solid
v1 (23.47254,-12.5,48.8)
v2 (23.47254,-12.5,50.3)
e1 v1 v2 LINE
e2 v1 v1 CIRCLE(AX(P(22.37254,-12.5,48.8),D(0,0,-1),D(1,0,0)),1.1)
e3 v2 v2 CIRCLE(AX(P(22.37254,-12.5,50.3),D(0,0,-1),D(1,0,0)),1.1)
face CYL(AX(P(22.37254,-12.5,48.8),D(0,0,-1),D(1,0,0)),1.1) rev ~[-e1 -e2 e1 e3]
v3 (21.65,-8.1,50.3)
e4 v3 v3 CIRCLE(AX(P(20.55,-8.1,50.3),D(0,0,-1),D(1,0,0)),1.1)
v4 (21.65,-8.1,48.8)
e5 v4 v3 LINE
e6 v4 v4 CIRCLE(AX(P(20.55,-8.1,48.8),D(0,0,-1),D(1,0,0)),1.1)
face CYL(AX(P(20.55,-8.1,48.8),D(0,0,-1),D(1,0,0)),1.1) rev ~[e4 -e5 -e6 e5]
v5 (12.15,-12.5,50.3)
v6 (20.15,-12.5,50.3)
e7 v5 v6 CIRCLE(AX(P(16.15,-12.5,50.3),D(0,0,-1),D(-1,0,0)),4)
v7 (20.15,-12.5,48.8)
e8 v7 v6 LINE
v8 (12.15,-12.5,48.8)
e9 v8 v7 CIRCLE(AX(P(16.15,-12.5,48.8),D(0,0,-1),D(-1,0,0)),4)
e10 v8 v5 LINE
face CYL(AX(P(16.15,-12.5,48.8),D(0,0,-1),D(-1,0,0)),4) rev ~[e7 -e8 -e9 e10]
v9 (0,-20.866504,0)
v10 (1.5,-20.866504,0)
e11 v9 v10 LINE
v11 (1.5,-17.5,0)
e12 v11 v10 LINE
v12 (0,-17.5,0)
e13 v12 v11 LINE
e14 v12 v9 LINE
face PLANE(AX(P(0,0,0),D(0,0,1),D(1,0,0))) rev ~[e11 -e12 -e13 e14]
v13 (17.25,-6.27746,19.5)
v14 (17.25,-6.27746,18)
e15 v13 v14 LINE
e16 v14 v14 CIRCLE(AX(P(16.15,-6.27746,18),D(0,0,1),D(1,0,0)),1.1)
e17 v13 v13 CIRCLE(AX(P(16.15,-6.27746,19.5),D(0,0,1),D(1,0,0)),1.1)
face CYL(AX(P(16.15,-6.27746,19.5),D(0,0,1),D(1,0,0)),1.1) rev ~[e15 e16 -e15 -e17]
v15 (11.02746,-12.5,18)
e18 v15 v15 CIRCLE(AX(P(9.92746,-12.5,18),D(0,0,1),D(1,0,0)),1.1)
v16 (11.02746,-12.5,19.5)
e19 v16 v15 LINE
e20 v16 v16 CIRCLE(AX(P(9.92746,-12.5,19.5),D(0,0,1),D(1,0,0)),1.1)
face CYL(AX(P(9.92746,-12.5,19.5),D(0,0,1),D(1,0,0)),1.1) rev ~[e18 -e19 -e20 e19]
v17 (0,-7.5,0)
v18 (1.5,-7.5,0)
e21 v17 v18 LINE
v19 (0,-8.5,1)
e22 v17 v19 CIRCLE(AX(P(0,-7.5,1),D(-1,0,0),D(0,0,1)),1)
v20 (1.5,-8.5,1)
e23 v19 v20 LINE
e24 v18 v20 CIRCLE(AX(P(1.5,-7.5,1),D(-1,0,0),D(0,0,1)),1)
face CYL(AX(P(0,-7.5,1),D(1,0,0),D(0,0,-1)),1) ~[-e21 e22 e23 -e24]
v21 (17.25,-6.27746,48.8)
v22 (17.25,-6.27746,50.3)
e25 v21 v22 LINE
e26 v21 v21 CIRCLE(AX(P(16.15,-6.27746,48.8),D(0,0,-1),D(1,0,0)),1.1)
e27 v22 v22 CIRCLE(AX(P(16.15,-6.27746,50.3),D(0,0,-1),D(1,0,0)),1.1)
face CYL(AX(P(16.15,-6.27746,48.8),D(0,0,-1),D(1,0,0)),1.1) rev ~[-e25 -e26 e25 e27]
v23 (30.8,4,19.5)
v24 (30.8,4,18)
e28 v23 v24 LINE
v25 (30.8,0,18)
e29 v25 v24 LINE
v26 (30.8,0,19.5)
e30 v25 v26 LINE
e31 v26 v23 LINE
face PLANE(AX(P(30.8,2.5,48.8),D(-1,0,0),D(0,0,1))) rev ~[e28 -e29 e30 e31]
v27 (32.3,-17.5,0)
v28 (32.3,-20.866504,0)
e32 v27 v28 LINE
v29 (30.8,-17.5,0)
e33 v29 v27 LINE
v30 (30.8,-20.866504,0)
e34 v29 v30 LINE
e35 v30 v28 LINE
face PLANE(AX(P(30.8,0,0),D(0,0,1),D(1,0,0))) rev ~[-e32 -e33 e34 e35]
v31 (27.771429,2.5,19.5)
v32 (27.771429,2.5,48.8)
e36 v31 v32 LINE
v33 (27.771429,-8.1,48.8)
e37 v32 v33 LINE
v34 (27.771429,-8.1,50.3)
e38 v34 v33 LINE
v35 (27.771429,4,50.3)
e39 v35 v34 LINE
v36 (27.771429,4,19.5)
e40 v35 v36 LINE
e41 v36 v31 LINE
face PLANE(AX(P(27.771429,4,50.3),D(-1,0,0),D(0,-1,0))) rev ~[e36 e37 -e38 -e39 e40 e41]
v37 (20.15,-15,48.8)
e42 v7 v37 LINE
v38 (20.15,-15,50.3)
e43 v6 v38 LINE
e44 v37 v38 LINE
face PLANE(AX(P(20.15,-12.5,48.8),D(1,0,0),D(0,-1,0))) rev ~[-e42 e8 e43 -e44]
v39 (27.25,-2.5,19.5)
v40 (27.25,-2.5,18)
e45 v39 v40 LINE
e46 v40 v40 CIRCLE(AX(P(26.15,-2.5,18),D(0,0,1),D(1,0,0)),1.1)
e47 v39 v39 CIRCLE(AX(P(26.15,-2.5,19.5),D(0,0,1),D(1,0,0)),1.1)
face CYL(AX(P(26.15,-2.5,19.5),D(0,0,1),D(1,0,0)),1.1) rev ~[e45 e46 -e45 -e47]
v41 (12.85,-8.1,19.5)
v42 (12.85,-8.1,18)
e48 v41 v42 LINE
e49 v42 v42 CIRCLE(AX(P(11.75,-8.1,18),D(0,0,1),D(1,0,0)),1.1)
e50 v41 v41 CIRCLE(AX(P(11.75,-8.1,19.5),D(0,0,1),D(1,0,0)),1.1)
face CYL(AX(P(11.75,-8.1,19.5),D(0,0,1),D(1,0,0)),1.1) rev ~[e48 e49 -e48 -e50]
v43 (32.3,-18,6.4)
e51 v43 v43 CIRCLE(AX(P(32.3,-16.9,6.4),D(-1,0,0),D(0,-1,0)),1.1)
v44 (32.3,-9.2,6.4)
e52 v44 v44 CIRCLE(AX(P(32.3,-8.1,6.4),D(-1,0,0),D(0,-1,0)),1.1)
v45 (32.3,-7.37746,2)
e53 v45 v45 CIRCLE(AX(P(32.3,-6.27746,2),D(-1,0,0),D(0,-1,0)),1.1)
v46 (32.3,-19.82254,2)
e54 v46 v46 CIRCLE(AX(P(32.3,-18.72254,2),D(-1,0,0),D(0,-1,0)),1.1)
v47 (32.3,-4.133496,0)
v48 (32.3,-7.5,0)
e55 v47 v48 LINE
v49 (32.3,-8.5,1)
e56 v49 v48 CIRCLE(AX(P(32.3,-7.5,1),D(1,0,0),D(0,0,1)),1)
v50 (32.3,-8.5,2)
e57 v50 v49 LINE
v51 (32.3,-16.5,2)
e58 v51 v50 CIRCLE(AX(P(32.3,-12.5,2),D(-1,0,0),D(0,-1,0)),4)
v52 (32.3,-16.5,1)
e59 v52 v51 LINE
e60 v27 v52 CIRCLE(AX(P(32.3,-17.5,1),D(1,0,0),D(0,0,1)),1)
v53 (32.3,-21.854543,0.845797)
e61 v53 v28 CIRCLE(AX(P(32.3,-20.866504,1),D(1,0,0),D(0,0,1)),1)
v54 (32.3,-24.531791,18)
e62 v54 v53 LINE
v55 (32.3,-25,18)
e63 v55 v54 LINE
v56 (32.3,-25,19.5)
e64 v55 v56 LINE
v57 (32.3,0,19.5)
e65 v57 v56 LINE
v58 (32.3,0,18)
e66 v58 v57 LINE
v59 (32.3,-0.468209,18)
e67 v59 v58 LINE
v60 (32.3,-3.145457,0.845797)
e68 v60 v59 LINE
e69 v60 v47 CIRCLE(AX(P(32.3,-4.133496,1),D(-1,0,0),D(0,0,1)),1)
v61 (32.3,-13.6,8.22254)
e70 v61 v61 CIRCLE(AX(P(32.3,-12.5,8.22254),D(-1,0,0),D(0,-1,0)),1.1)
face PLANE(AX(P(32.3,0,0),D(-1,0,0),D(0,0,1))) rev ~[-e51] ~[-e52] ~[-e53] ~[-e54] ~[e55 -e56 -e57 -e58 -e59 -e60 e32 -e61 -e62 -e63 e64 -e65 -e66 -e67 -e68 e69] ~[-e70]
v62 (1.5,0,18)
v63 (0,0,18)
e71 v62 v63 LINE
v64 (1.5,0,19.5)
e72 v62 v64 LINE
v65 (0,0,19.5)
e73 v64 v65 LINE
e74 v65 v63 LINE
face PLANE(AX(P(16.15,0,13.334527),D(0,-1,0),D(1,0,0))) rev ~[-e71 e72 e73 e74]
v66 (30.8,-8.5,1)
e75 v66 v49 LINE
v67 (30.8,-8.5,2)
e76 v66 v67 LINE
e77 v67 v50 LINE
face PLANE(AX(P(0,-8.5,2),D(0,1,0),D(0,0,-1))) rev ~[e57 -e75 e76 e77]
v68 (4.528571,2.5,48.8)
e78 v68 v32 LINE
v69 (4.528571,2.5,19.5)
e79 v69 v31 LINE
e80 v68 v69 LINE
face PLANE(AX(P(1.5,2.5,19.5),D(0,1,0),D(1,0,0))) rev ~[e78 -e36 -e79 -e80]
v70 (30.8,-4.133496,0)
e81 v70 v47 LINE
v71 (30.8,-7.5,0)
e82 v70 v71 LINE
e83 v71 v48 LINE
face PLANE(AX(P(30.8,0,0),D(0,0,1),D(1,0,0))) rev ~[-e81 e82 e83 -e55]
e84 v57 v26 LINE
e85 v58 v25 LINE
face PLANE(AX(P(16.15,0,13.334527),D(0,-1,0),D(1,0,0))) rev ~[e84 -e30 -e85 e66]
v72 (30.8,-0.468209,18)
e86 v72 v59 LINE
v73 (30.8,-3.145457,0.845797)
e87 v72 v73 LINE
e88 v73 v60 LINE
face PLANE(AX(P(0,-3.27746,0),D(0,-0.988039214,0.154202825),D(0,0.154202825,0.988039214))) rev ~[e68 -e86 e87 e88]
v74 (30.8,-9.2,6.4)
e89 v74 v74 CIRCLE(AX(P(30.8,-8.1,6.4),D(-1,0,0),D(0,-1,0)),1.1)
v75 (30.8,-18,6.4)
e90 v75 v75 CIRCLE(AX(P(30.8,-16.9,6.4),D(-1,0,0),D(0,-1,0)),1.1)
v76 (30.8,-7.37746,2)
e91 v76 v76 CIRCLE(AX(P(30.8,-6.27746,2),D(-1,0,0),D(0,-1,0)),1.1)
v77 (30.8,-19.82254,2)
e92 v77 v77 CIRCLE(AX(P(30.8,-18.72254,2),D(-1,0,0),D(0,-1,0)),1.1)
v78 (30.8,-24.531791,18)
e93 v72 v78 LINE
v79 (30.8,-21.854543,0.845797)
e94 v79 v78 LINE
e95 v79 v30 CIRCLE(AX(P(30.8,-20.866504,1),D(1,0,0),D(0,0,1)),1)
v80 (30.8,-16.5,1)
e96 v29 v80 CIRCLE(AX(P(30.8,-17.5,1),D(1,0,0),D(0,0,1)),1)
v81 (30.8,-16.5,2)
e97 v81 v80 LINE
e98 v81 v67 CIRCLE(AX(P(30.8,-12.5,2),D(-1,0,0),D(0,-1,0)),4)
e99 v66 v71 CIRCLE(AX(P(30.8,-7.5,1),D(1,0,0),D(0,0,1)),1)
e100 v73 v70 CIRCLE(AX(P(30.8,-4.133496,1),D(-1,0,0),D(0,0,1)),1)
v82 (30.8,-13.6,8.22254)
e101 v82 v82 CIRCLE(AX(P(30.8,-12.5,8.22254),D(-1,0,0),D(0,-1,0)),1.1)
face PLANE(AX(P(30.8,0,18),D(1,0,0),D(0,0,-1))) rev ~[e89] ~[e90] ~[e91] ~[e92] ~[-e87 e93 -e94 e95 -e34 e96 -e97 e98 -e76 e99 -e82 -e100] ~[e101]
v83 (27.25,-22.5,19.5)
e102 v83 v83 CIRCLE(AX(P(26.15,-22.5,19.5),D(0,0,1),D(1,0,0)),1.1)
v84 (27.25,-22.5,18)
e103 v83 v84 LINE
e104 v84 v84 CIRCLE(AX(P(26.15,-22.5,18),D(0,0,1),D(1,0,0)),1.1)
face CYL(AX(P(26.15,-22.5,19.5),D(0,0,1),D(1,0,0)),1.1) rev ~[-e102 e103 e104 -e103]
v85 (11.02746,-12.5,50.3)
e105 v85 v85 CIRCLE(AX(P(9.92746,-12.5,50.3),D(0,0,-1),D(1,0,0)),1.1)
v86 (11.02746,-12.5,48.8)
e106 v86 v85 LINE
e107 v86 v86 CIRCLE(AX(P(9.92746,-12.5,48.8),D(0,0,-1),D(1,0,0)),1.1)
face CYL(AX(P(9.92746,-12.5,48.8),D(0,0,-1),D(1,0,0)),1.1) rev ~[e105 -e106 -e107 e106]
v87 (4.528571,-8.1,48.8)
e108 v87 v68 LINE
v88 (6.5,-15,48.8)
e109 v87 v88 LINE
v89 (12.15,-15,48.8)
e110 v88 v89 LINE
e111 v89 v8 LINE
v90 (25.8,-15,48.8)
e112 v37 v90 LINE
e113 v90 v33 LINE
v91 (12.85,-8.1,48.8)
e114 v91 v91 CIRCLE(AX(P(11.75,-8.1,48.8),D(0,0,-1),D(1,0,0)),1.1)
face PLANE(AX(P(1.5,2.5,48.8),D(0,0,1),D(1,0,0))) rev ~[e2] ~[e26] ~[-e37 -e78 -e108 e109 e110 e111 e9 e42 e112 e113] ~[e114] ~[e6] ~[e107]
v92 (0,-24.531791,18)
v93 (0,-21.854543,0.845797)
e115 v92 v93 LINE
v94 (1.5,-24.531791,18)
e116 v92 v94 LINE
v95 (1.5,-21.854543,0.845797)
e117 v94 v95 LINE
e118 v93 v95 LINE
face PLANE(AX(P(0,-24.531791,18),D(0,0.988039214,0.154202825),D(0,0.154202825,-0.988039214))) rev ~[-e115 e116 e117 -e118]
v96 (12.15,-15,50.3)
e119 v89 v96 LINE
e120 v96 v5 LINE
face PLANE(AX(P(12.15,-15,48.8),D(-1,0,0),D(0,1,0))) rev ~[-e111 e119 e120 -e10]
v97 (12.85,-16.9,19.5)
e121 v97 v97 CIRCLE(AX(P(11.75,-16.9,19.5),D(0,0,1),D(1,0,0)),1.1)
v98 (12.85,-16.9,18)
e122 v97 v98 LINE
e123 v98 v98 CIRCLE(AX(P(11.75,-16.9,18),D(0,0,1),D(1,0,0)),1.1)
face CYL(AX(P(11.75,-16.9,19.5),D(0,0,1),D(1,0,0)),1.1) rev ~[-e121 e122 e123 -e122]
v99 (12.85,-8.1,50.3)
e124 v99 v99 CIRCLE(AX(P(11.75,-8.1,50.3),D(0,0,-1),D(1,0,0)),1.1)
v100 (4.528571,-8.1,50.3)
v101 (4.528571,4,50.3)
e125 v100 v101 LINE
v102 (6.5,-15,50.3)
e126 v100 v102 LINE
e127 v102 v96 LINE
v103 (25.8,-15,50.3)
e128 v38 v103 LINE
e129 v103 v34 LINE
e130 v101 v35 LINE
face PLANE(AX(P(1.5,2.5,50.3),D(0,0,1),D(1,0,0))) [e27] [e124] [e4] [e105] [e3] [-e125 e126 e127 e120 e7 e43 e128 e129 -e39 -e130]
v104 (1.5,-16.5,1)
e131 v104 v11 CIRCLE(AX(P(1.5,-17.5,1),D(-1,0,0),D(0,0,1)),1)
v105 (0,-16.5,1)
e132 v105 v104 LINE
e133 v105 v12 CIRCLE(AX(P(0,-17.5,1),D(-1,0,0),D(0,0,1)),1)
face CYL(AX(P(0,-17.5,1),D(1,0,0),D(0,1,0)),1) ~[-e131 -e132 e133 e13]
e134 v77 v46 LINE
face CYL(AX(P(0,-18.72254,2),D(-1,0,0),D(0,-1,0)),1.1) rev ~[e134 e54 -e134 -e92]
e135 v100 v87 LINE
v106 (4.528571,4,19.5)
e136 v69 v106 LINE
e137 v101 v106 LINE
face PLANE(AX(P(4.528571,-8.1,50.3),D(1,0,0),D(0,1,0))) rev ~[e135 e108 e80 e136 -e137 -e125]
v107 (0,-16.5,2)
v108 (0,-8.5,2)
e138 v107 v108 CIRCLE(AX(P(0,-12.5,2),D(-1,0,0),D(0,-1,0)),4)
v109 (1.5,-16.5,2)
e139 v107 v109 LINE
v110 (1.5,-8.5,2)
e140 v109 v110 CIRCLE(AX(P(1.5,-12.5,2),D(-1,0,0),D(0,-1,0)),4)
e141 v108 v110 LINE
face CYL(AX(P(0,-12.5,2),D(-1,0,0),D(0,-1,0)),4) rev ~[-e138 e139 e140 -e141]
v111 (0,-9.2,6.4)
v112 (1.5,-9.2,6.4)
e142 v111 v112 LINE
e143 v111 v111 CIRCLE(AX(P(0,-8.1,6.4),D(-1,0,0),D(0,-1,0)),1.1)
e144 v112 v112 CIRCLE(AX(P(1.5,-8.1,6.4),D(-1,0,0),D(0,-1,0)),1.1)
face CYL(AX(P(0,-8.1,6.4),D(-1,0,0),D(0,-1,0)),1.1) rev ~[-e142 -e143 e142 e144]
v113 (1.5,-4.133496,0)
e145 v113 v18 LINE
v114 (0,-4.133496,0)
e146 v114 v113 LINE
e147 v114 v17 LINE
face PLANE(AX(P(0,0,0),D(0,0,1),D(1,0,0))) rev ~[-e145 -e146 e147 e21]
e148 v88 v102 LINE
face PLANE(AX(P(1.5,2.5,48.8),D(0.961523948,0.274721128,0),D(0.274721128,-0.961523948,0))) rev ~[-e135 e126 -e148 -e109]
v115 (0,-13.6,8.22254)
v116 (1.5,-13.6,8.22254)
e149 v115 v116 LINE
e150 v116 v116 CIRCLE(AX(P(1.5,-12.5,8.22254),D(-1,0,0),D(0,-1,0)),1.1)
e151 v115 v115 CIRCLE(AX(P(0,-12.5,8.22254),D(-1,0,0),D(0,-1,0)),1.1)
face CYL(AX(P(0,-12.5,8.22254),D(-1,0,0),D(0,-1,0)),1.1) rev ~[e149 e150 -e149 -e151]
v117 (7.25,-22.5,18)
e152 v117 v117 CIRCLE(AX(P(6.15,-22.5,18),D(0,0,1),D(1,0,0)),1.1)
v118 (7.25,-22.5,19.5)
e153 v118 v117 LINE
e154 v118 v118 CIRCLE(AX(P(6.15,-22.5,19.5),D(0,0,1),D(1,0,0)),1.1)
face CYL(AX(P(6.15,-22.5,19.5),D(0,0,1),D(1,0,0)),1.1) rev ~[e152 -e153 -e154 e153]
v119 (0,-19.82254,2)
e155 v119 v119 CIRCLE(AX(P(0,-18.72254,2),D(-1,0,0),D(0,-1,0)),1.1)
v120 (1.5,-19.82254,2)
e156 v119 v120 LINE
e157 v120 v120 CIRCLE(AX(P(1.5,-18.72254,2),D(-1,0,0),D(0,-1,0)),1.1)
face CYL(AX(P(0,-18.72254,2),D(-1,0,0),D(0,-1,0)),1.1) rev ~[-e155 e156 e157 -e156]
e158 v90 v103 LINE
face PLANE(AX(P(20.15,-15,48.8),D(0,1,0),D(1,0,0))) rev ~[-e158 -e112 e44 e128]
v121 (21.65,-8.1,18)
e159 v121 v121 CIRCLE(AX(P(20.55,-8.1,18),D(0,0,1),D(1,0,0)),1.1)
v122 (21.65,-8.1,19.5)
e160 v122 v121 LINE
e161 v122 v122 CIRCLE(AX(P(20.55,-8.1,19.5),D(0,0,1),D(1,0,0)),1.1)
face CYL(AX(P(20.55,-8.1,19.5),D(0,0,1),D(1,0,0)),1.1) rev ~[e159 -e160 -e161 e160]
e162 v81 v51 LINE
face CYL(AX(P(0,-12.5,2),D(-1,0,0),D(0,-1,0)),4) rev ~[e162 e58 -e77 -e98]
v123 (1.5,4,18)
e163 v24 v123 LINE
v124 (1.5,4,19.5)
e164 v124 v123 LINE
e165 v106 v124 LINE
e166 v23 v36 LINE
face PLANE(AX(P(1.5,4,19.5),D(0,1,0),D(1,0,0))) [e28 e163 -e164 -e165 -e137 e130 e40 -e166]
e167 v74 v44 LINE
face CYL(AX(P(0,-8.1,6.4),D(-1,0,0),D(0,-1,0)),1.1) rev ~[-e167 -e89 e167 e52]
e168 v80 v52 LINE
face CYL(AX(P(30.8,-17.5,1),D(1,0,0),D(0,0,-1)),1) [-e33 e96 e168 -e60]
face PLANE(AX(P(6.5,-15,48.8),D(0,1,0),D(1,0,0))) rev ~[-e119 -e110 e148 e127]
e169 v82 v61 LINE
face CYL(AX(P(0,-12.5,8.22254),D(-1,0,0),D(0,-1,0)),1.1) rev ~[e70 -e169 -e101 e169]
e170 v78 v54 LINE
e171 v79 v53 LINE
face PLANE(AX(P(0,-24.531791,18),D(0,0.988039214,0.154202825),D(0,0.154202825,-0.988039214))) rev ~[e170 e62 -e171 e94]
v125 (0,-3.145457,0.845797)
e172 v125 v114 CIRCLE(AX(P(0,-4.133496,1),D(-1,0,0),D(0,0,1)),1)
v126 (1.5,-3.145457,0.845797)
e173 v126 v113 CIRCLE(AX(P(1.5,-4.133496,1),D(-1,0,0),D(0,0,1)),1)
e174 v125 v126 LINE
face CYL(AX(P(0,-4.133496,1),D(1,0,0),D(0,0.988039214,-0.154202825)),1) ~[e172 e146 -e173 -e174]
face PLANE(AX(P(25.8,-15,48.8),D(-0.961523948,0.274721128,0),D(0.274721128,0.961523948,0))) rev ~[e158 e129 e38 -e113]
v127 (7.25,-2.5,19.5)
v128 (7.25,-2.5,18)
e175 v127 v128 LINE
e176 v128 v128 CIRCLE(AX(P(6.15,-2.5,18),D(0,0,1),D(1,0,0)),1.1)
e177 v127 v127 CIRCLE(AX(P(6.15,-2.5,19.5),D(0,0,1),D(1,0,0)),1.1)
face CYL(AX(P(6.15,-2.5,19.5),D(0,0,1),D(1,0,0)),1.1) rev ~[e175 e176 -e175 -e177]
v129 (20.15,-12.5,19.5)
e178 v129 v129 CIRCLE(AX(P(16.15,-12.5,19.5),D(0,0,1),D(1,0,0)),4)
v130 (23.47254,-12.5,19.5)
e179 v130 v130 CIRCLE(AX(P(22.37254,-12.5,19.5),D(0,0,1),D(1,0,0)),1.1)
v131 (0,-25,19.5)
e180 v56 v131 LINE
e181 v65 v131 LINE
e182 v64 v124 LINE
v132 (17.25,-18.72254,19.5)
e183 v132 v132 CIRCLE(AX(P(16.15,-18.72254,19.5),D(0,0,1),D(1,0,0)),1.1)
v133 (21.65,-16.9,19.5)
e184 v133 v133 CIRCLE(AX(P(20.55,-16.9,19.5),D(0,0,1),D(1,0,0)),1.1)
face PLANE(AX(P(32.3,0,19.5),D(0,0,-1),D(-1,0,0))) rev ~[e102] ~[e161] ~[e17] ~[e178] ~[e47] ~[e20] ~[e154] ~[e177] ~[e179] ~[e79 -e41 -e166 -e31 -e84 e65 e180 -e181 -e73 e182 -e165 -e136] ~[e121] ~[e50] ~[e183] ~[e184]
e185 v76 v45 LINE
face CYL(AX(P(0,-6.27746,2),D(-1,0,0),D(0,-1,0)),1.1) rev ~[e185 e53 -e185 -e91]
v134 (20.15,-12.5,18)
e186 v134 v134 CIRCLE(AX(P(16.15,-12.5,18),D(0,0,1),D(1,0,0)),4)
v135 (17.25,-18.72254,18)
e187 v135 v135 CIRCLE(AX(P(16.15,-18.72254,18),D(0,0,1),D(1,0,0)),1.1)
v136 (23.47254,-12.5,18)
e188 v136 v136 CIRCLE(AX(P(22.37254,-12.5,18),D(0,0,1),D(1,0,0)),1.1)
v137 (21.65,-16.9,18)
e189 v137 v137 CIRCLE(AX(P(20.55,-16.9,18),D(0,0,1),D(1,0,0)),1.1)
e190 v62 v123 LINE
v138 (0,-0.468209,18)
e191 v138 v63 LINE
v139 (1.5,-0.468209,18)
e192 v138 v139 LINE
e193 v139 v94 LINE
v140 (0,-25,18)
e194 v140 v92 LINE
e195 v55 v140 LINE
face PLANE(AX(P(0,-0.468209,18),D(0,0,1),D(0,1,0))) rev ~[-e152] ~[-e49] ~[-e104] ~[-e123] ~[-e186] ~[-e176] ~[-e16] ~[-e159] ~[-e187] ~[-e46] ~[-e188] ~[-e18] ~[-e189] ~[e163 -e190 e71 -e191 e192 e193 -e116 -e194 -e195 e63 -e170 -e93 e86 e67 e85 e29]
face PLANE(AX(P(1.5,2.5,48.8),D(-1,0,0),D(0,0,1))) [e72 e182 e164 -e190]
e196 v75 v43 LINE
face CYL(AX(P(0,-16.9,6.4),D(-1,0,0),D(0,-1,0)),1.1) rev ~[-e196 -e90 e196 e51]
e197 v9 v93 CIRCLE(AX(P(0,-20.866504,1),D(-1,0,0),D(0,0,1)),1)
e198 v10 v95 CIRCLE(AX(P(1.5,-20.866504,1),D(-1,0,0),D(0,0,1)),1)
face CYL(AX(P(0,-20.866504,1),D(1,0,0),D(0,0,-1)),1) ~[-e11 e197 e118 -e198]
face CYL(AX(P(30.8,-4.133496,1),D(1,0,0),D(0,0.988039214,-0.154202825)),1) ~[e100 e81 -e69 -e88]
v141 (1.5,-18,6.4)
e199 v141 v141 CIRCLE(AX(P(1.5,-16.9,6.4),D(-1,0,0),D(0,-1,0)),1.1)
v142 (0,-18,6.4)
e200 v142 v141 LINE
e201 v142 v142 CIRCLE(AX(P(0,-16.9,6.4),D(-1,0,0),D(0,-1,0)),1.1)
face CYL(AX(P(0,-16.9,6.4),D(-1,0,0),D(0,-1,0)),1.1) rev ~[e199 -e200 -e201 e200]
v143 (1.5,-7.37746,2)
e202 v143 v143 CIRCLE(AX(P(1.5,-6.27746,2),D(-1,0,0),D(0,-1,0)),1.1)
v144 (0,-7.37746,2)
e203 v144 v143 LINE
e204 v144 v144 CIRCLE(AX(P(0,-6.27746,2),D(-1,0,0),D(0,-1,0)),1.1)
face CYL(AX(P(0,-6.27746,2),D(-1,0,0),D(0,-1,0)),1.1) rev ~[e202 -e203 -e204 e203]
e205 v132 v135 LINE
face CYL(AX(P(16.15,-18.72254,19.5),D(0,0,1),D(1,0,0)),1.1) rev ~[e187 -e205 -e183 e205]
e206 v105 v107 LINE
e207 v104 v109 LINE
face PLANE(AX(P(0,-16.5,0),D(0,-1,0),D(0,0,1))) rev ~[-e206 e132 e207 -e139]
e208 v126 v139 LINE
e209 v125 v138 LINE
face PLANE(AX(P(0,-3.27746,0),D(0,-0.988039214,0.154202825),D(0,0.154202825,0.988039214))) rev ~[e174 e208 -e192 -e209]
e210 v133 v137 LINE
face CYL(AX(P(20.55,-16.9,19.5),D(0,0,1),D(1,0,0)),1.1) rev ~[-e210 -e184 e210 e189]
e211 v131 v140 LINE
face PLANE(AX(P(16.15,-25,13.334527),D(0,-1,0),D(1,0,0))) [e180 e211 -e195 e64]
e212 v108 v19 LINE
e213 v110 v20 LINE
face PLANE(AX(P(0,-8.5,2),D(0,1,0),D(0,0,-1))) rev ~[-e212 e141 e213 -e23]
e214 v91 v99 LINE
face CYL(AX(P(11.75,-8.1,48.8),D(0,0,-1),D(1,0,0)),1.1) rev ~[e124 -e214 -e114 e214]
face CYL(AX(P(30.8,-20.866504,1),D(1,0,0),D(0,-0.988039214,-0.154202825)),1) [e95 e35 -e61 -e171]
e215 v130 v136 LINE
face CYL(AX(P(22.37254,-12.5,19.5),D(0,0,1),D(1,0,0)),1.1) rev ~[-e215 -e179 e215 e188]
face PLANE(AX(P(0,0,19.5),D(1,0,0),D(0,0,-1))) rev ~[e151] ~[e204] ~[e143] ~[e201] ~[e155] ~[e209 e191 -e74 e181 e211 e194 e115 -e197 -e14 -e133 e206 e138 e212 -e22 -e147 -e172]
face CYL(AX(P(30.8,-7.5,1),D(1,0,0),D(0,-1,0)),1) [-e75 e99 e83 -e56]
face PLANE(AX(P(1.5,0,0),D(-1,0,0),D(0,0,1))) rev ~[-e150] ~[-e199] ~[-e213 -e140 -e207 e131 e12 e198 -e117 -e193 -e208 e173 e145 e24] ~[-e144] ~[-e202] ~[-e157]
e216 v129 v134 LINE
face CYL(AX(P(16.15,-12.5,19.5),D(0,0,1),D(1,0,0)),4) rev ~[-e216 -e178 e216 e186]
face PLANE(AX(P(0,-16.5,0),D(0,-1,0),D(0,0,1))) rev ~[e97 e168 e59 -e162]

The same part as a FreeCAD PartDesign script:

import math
import FreeCAD as App
import Part
import Sketcher

V = App.Vector


def edges_at(feature, points):
    """Names of the edges that pass closest to the given points."""
    edges = feature.Shape.Edges
    near = lambda p: min(range(len(edges)), key=lambda i: edges[i].distToShape(Part.Vertex(*p))[0])
    return sorted({f"Edge{near(p) + 1}" for p in points})

doc = App.newDocument("Part")
body = doc.addObject("PartDesign::Body", "Body")

sketch1 = doc.addObject("Sketcher::SketchObject", "Sketch")
body.addObject(sketch1)
sketch1.AttachmentSupport = (doc.XZ_Plane, [""])
sketch1.MapMode = "FlatFace"
sketch1.addGeometry(Part.LineSegment(V(0, 19.5, 0), V(0, 0, 0)), False)
sketch1.addGeometry(Part.LineSegment(V(0, 0, 0), V(1.5, 0, 0)), False)
sketch1.addGeometry(Part.LineSegment(V(1.5, 0, 0), V(1.5, 18, 0)), False)
sketch1.addGeometry(Part.LineSegment(V(1.5, 18, 0), V(30.8, 18, 0)), False)
sketch1.addGeometry(Part.LineSegment(V(30.8, 18, 0), V(30.8, 0, 0)), False)
sketch1.addGeometry(Part.LineSegment(V(30.8, 0, 0), V(32.3, 0, 0)), False)
sketch1.addGeometry(Part.LineSegment(V(32.3, 0, 0), V(32.3, 19.5, 0)), False)
sketch1.addGeometry(Part.LineSegment(V(32.3, 19.5, 0), V(0, 19.5, 0)), False)
sketch1.addConstraint(Sketcher.Constraint("Coincident", 0, 2, 1, 1))
sketch1.addConstraint(Sketcher.Constraint("Coincident", 1, 2, 2, 1))
sketch1.addConstraint(Sketcher.Constraint("Coincident", 2, 2, 3, 1))
sketch1.addConstraint(Sketcher.Constraint("Coincident", 3, 2, 4, 1))
sketch1.addConstraint(Sketcher.Constraint("Coincident", 4, 2, 5, 1))
sketch1.addConstraint(Sketcher.Constraint("Coincident", 5, 2, 6, 1))
sketch1.addConstraint(Sketcher.Constraint("Coincident", 6, 2, 7, 1))
sketch1.addConstraint(Sketcher.Constraint("Coincident", 7, 2, 0, 1))
sketch1.addConstraint(Sketcher.Constraint("Vertical", 0))
sketch1.addConstraint(Sketcher.Constraint("Horizontal", 1))
sketch1.addConstraint(Sketcher.Constraint("Vertical", 2))
sketch1.addConstraint(Sketcher.Constraint("Horizontal", 3))
sketch1.addConstraint(Sketcher.Constraint("Vertical", 4))
sketch1.addConstraint(Sketcher.Constraint("Horizontal", 5))
sketch1.addConstraint(Sketcher.Constraint("Vertical", 6))
sketch1.addConstraint(Sketcher.Constraint("Horizontal", 7))
sketch1.addConstraint(Sketcher.Constraint("Coincident", 0, 2, -1, 1))
sketch1.addConstraint(Sketcher.Constraint("PointOnObject", 4, 2, -1))
sketch1.addConstraint(Sketcher.Constraint("Equal", 1, 5))
sketch1.addConstraint(Sketcher.Constraint("DistanceY", 2, 1, 2, 2, 18.0))
sketch1.addConstraint(Sketcher.Constraint("DistanceX", 1, 1, 1, 2, 1.5))
sketch1.addConstraint(Sketcher.Constraint("DistanceX", 3, 1, 3, 2, 29.3))
sketch1.addConstraint(Sketcher.Constraint("DistanceY", 0, 2, 0, 1, 19.5))
pad1 = doc.addObject("PartDesign::Pad", "Pad")
body.addObject(pad1)
pad1.Profile = sketch1
pad1.Length = 25

sketch2 = doc.addObject("Sketcher::SketchObject", "Sketch001")
body.addObject(sketch2)
sketch2.AttachmentSupport = (doc.YZ_Plane, [""])
sketch2.MapMode = "FlatFace"
sketch2.addGeometry(Part.LineSegment(V(-16.5, 0, 0), V(-16.5, 2, 0)), False)
sketch2.addGeometry(Part.ArcOfCircle(Part.Circle(V(-12.5, 2, 0), V(0, 0, 1), 4), math.radians(0), math.radians(180)), False)
sketch2.addGeometry(Part.LineSegment(V(-8.5, 2, 0), V(-8.5, 0, 0)), False)
sketch2.addGeometry(Part.LineSegment(V(-8.5, 0, 0), V(-16.5, 0, 0)), False)
sketch2.addGeometry(Part.Circle(V(-18.72, 2, 0), V(0, 0, 1), 1.1), False)
sketch2.addGeometry(Part.Circle(V(-16.9, 6.4, 0), V(0, 0, 1), 1.1), False)
sketch2.addGeometry(Part.Circle(V(-12.5, 8.22, 0), V(0, 0, 1), 1.1), False)
sketch2.addGeometry(Part.Circle(V(-8.1, 6.4, 0), V(0, 0, 1), 1.1), False)
sketch2.addGeometry(Part.Circle(V(-6.28, 2, 0), V(0, 0, 1), 1.1), False)
sketch2.addGeometry(Part.LineSegment(V(0, 0, 0), V(-3.28, 0, 0)), False)
sketch2.addGeometry(Part.LineSegment(V(-3.28, 0, 0), V(-0.47, 18, 0)), False)
sketch2.addGeometry(Part.LineSegment(V(-0.47, 18, 0), V(0, 18, 0)), False)
sketch2.addGeometry(Part.LineSegment(V(0, 18, 0), V(0, 0, 0)), False)
sketch2.addGeometry(Part.LineSegment(V(-21.72, 0, 0), V(-25, 0, 0)), False)
sketch2.addGeometry(Part.LineSegment(V(-25, 0, 0), V(-25, 18, 0)), False)
sketch2.addGeometry(Part.LineSegment(V(-25, 18, 0), V(-24.53, 18, 0)), False)
sketch2.addGeometry(Part.LineSegment(V(-24.53, 18, 0), V(-21.72, 0, 0)), False)
sketch2.addConstraint(Sketcher.Constraint("Tangent", 0, 2, 1, 2))
sketch2.addConstraint(Sketcher.Constraint("Tangent", 1, 1, 2, 1))
sketch2.addConstraint(Sketcher.Constraint("Coincident", 2, 2, 3, 1))
sketch2.addConstraint(Sketcher.Constraint("Coincident", 3, 2, 0, 1))
sketch2.addConstraint(Sketcher.Constraint("Coincident", 9, 2, 10, 1))
sketch2.addConstraint(Sketcher.Constraint("Coincident", 10, 2, 11, 1))
sketch2.addConstraint(Sketcher.Constraint("Coincident", 11, 2, 12, 1))
sketch2.addConstraint(Sketcher.Constraint("Coincident", 12, 2, 9, 1))
sketch2.addConstraint(Sketcher.Constraint("Coincident", 13, 2, 14, 1))
sketch2.addConstraint(Sketcher.Constraint("Coincident", 14, 2, 15, 1))
sketch2.addConstraint(Sketcher.Constraint("Coincident", 15, 2, 16, 1))
sketch2.addConstraint(Sketcher.Constraint("Coincident", 16, 2, 13, 1))
sketch2.addConstraint(Sketcher.Constraint("Vertical", 0))
sketch2.addConstraint(Sketcher.Constraint("Vertical", 2))
sketch2.addConstraint(Sketcher.Constraint("Horizontal", 3))
sketch2.addConstraint(Sketcher.Constraint("Horizontal", 9))
sketch2.addConstraint(Sketcher.Constraint("Horizontal", 11))
sketch2.addConstraint(Sketcher.Constraint("Vertical", 12))
sketch2.addConstraint(Sketcher.Constraint("Horizontal", 13))
sketch2.addConstraint(Sketcher.Constraint("Vertical", 14))
sketch2.addConstraint(Sketcher.Constraint("Horizontal", 15))
sketch2.addConstraint(Sketcher.Constraint("Coincident", 12, 2, -1, 1))
sketch2.addConstraint(Sketcher.Constraint("Equal", 4, 5))
sketch2.addConstraint(Sketcher.Constraint("Equal", 5, 6))
sketch2.addConstraint(Sketcher.Constraint("Equal", 6, 7))
sketch2.addConstraint(Sketcher.Constraint("Equal", 7, 8))
sketch2.addConstraint(Sketcher.Constraint("PointOnObject", 2, 2, -1))
sketch2.addConstraint(Sketcher.Constraint("PointOnObject", 13, 2, -1))
sketch2.addConstraint(Sketcher.Constraint("Horizontal", 1, 3, 4, 3))
sketch2.addConstraint(Sketcher.Constraint("Horizontal", 5, 3, 7, 3))
sketch2.addConstraint(Sketcher.Constraint("Horizontal", 4, 3, 8, 3))
sketch2.addConstraint(Sketcher.Constraint("Horizontal", 11, 2, 14, 2))
sketch2.addConstraint(Sketcher.Constraint("Vertical", 1, 3, 6, 3))
sketch2.addConstraint(Sketcher.Constraint("Equal", 9, 13))
sketch2.addConstraint(Sketcher.Constraint("Equal", 11, 15))
sketch2.addConstraint(Sketcher.Constraint("Radius", 1, 4.0))
sketch2.addConstraint(Sketcher.Constraint("Diameter", 4, 2.2))
sketch2.addConstraint(Sketcher.Constraint("DistanceY", 0, 1, 0, 2, 2.0))
sketch2.addConstraint(Sketcher.Constraint("DistanceY", 12, 2, 12, 1, 18.0))
sketch2.addConstraint(Sketcher.Constraint("DistanceX", 13, 2, -1, 1, 25.0))
sketch2.addConstraint(Sketcher.Constraint("DistanceX", 8, 3, 9, 2, 3.0))
sketch2.addConstraint(Sketcher.Constraint("DistanceX", 16, 2, 4, 3, 3.0))
sketch2.addConstraint(Sketcher.Constraint("DistanceX", 1, 3, -1, 1, 12.5))
sketch2.addConstraint(Sketcher.Constraint("DistanceX", 5, 3, -1, 1, 16.9))
sketch2.addConstraint(Sketcher.Constraint("DistanceY", -1, 1, 5, 3, 6.4))
sketch2.addConstraint(Sketcher.Constraint("DistanceX", 7, 3, -1, 1, 8.1))
sketch2.addConstraint(Sketcher.Constraint("Distance", 10, 18.2179))
sketch2.addConstraint(Sketcher.Constraint("DistanceX", 9, 2, 9, 1, 3.27746))
sketch2.addConstraint(Sketcher.Constraint("DistanceY", -1, 1, 6, 3, 8.22254))
pocket1 = doc.addObject("PartDesign::Pocket", "Pocket")
body.addObject(pocket1)
pocket1.Profile = sketch2
pocket1.Type = "ThroughAll"
pocket1.Reversed = True

sketch3 = doc.addObject("Sketcher::SketchObject", "Sketch002")
body.addObject(sketch3)
sketch3.AttachmentSupport = (doc.XY_Plane, [""])
sketch3.MapMode = "FlatFace"
sketch3.AttachmentOffset = App.Placement(V(0, 0, 19.5), App.Rotation())
sketch3.addGeometry(Part.Circle(V(6.2, -2.5, 0), V(0, 0, 1), 1.1), False)
sketch3.addGeometry(Part.Circle(V(26.1, -2.5, 0), V(0, 0, 1), 1.1), False)
sketch3.addGeometry(Part.Circle(V(6.2, -22.5, 0), V(0, 0, 1), 1.1), False)
sketch3.addGeometry(Part.Circle(V(26.1, -22.5, 0), V(0, 0, 1), 1.1), False)
sketch3.addGeometry(Part.Circle(V(16.1, -12.5, 0), V(0, 0, 1), 4), False)
sketch3.addGeometry(Part.Circle(V(11.8, -8.1, 0), V(0, 0, 1), 1.1), False)
sketch3.addGeometry(Part.Circle(V(9.9, -12.5, 0), V(0, 0, 1), 1.1), False)
sketch3.addGeometry(Part.Circle(V(11.8, -16.9, 0), V(0, 0, 1), 1.1), False)
sketch3.addGeometry(Part.Circle(V(16.1, -18.7, 0), V(0, 0, 1), 1.1), False)
sketch3.addGeometry(Part.Circle(V(20.6, -16.9, 0), V(0, 0, 1), 1.1), False)
sketch3.addGeometry(Part.Circle(V(22.4, -12.5, 0), V(0, 0, 1), 1.1), False)
sketch3.addGeometry(Part.Circle(V(20.6, -8.1, 0), V(0, 0, 1), 1.1), False)
sketch3.addGeometry(Part.Circle(V(16.1, -6.3, 0), V(0, 0, 1), 1.1), False)
sketch3.addConstraint(Sketcher.Constraint("Equal", 0, 1))
sketch3.addConstraint(Sketcher.Constraint("Equal", 1, 2))
sketch3.addConstraint(Sketcher.Constraint("Equal", 2, 3))
sketch3.addConstraint(Sketcher.Constraint("Equal", 3, 5))
sketch3.addConstraint(Sketcher.Constraint("Equal", 5, 6))
sketch3.addConstraint(Sketcher.Constraint("Equal", 6, 7))
sketch3.addConstraint(Sketcher.Constraint("Equal", 7, 8))
sketch3.addConstraint(Sketcher.Constraint("Equal", 8, 9))
sketch3.addConstraint(Sketcher.Constraint("Equal", 9, 10))
sketch3.addConstraint(Sketcher.Constraint("Equal", 10, 11))
sketch3.addConstraint(Sketcher.Constraint("Equal", 11, 12))
sketch3.addConstraint(Sketcher.Constraint("Horizontal", 0, 3, 1, 3))
sketch3.addConstraint(Sketcher.Constraint("Horizontal", 2, 3, 3, 3))
sketch3.addConstraint(Sketcher.Constraint("Horizontal", 4, 3, 6, 3))
sketch3.addConstraint(Sketcher.Constraint("Horizontal", 7, 3, 9, 3))
sketch3.addConstraint(Sketcher.Constraint("Horizontal", 6, 3, 10, 3))
sketch3.addConstraint(Sketcher.Constraint("Horizontal", 5, 3, 11, 3))
sketch3.addConstraint(Sketcher.Constraint("Vertical", 0, 3, 2, 3))
sketch3.addConstraint(Sketcher.Constraint("Vertical", 1, 3, 3, 3))
sketch3.addConstraint(Sketcher.Constraint("Vertical", 5, 3, 7, 3))
sketch3.addConstraint(Sketcher.Constraint("Vertical", 4, 3, 8, 3))
sketch3.addConstraint(Sketcher.Constraint("Vertical", 9, 3, 11, 3))
sketch3.addConstraint(Sketcher.Constraint("Vertical", 8, 3, 12, 3))
sketch3.addConstraint(Sketcher.Constraint("Diameter", 4, 8.0))
sketch3.addConstraint(Sketcher.Constraint("Diameter", 0, 2.2))
sketch3.addConstraint(Sketcher.Constraint("DistanceX", 0, 3, 1, 3, 20.0))
sketch3.addConstraint(Sketcher.Constraint("DistanceY", 2, 3, 0, 3, 20.0))
sketch3.addConstraint(Sketcher.Constraint("DistanceX", 0, 3, 4, 3, 10.0))
sketch3.addConstraint(Sketcher.Constraint("DistanceY", 4, 3, 0, 3, 10.0))
sketch3.addConstraint(Sketcher.Constraint("DistanceY", 0, 3, -1, 1, 2.5))
sketch3.addConstraint(Sketcher.Constraint("DistanceY", 5, 3, -1, 1, 8.1))
sketch3.addConstraint(Sketcher.Constraint("DistanceY", 7, 3, -1, 1, 16.9))
sketch3.addConstraint(Sketcher.Constraint("DistanceX", 5, 3, 4, 3, 4.4))
sketch3.addConstraint(Sketcher.Constraint("DistanceX", 8, 3, 9, 3, 4.4))
sketch3.addConstraint(Sketcher.Constraint("DistanceX", -1, 1, 0, 3, 6.15))
sketch3.addConstraint(Sketcher.Constraint("DistanceX", -1, 1, 6, 3, 9.92746))
sketch3.addConstraint(Sketcher.Constraint("DistanceY", 8, 3, -1, 1, 18.72254))
sketch3.addConstraint(Sketcher.Constraint("DistanceX", -1, 1, 10, 3, 22.37254))
sketch3.addConstraint(Sketcher.Constraint("DistanceY", 12, 3, -1, 1, 6.27746))
pocket2 = doc.addObject("PartDesign::Pocket", "Pocket001")
body.addObject(pocket2)
pocket2.Profile = sketch3
pocket2.Type = "ThroughAll"
doc.recompute()

fillet = doc.addObject("PartDesign::Fillet", "Fillet")
body.addObject(fillet)
fillet.Base = (pocket2, edges_at(pocket2, [
    (31.55, -3.277, 0),
    (0.75, -3.277, 0),
    (31.55, -8.5, 0),
    (0.75, -8.5, 0),
    (31.55, -16.5, 0),
    (0.75, -16.5, 0),
    (31.55, -21.723, 0),
    (0.75, -21.723, 0),
]))
fillet.Radius = 1

sketch4 = doc.addObject("Sketcher::SketchObject", "Sketch003")
body.addObject(sketch4)
sketch4.AttachmentSupport = (doc.XZ_Plane, [""])
sketch4.MapMode = "FlatFace"
sketch4.addGeometry(Part.LineSegment(V(30.8, 19.5, 0), V(30.8, 18, 0)), False)
sketch4.addGeometry(Part.LineSegment(V(30.8, 18, 0), V(1.5, 18, 0)), False)
sketch4.addGeometry(Part.LineSegment(V(1.5, 18, 0), V(1.5, 19.5, 0)), False)
sketch4.addGeometry(Part.LineSegment(V(1.5, 19.5, 0), V(30.8, 19.5, 0)), False)
sketch4.addConstraint(Sketcher.Constraint("Coincident", 0, 2, 1, 1))
sketch4.addConstraint(Sketcher.Constraint("Coincident", 1, 2, 2, 1))
sketch4.addConstraint(Sketcher.Constraint("Coincident", 2, 2, 3, 1))
sketch4.addConstraint(Sketcher.Constraint("Coincident", 3, 2, 0, 1))
sketch4.addConstraint(Sketcher.Constraint("Vertical", 0))
sketch4.addConstraint(Sketcher.Constraint("Horizontal", 1))
sketch4.addConstraint(Sketcher.Constraint("Vertical", 2))
sketch4.addConstraint(Sketcher.Constraint("Horizontal", 3))
sketch4.addConstraint(Sketcher.Constraint("DistanceX", 1, 2, 1, 1, 29.3))
sketch4.addConstraint(Sketcher.Constraint("DistanceY", 0, 2, 0, 1, 1.5))
sketch4.addConstraint(Sketcher.Constraint("DistanceY", -1, 1, 0, 2, 18.0))
sketch4.addConstraint(Sketcher.Constraint("DistanceX", -1, 1, 0, 2, 30.8))
pad2 = doc.addObject("PartDesign::Pad", "Pad001")
body.addObject(pad2)
pad2.Profile = sketch4
pad2.Length = 4
pad2.Reversed = True

sketch5 = doc.addObject("Sketcher::SketchObject", "Sketch004")
body.addObject(sketch5)
sketch5.AttachmentSupport = (doc.XY_Plane, [""])
sketch5.MapMode = "FlatFace"
sketch5.AttachmentOffset = App.Placement(V(0, 0, 19.5), App.Rotation())
sketch5.addGeometry(Part.LineSegment(V(1.5, 4, 0), V(1.5, 2.5, 0)), False)
sketch5.addGeometry(Part.LineSegment(V(1.5, 2.5, 0), V(30.8, 2.5, 0)), False)
sketch5.addGeometry(Part.LineSegment(V(30.8, 2.5, 0), V(30.8, 4, 0)), False)
sketch5.addGeometry(Part.LineSegment(V(30.8, 4, 0), V(1.5, 4, 0)), False)
sketch5.addConstraint(Sketcher.Constraint("Coincident", 0, 2, 1, 1))
sketch5.addConstraint(Sketcher.Constraint("Coincident", 1, 2, 2, 1))
sketch5.addConstraint(Sketcher.Constraint("Coincident", 2, 2, 3, 1))
sketch5.addConstraint(Sketcher.Constraint("Coincident", 3, 2, 0, 1))
sketch5.addConstraint(Sketcher.Constraint("Vertical", 0))
sketch5.addConstraint(Sketcher.Constraint("Horizontal", 1))
sketch5.addConstraint(Sketcher.Constraint("Vertical", 2))
sketch5.addConstraint(Sketcher.Constraint("Horizontal", 3))
sketch5.addConstraint(Sketcher.Constraint("DistanceX", 1, 1, 1, 2, 29.3))
sketch5.addConstraint(Sketcher.Constraint("DistanceY", 0, 2, 0, 1, 1.5))
sketch5.addConstraint(Sketcher.Constraint("DistanceY", -1, 1, 2, 2, 4.0))
sketch5.addConstraint(Sketcher.Constraint("DistanceX", -1, 1, 0, 2, 1.5))
pad3 = doc.addObject("PartDesign::Pad", "Pad002")
body.addObject(pad3)
pad3.Profile = sketch5
pad3.Length = 30.8

sketch6 = doc.addObject("Sketcher::SketchObject", "Sketch005")
body.addObject(sketch6)
sketch6.AttachmentSupport = (doc.XZ_Plane, [""])
sketch6.MapMode = "FlatFace"
sketch6.AttachmentOffset = App.Placement(V(0, 0, -2.5), App.Rotation())
sketch6.addGeometry(Part.LineSegment(V(1.5, 50.3, 0), V(1.5, 48.8, 0)), False)
sketch6.addGeometry(Part.LineSegment(V(1.5, 48.8, 0), V(30.8, 48.8, 0)), False)
sketch6.addGeometry(Part.LineSegment(V(30.8, 48.8, 0), V(30.8, 50.3, 0)), False)
sketch6.addGeometry(Part.LineSegment(V(30.8, 50.3, 0), V(1.5, 50.3, 0)), False)
sketch6.addConstraint(Sketcher.Constraint("Coincident", 0, 2, 1, 1))
sketch6.addConstraint(Sketcher.Constraint("Coincident", 1, 2, 2, 1))
sketch6.addConstraint(Sketcher.Constraint("Coincident", 2, 2, 3, 1))
sketch6.addConstraint(Sketcher.Constraint("Coincident", 3, 2, 0, 1))
sketch6.addConstraint(Sketcher.Constraint("Vertical", 0))
sketch6.addConstraint(Sketcher.Constraint("Horizontal", 1))
sketch6.addConstraint(Sketcher.Constraint("Vertical", 2))
sketch6.addConstraint(Sketcher.Constraint("Horizontal", 3))
sketch6.addConstraint(Sketcher.Constraint("DistanceX", 1, 1, 1, 2, 29.3))
sketch6.addConstraint(Sketcher.Constraint("DistanceY", 0, 2, 0, 1, 1.5))
sketch6.addConstraint(Sketcher.Constraint("DistanceX", -1, 1, 0, 2, 1.5))
sketch6.addConstraint(Sketcher.Constraint("DistanceY", -1, 1, 0, 2, 48.8))
pad4 = doc.addObject("PartDesign::Pad", "Pad003")
body.addObject(pad4)
pad4.Profile = sketch6
pad4.Length = 20

sketch7 = doc.addObject("Sketcher::SketchObject", "Sketch006")
body.addObject(sketch7)
sketch7.AttachmentSupport = (doc.XY_Plane, [""])
sketch7.MapMode = "FlatFace"
sketch7.AttachmentOffset = App.Placement(V(0, 0, 48.8), App.Rotation())
sketch7.addGeometry(Part.Circle(V(9.9, -12.5, 0), V(0, 0, 1), 1.1), False)
sketch7.addGeometry(Part.Circle(V(11.8, -8.1, 0), V(0, 0, 1), 1.1), False)
sketch7.addGeometry(Part.Circle(V(16.1, -6.3, 0), V(0, 0, 1), 1.1), False)
sketch7.addGeometry(Part.Circle(V(20.6, -8.1, 0), V(0, 0, 1), 1.1), False)
sketch7.addGeometry(Part.Circle(V(22.4, -12.5, 0), V(0, 0, 1), 1.1), False)
sketch7.addGeometry(Part.LineSegment(V(12.2, -15, 0), V(12.2, -12.5, 0)), False)
sketch7.addGeometry(Part.ArcOfCircle(Part.Circle(V(16.1, -12.5, 0), V(0, 0, 1), 4), math.radians(0), math.radians(180)), False)
sketch7.addGeometry(Part.LineSegment(V(20.1, -12.5, 0), V(20.1, -15, 0)), False)
sketch7.addGeometry(Part.LineSegment(V(20.1, -15, 0), V(25.8, -15, 0)), False)
sketch7.addGeometry(Part.LineSegment(V(25.8, -15, 0), V(30.8, 2.5, 0)), False)
sketch7.addGeometry(Part.LineSegment(V(30.8, 2.5, 0), V(30.8, -17.5, 0)), False)
sketch7.addGeometry(Part.LineSegment(V(30.8, -17.5, 0), V(1.5, -17.5, 0)), False)
sketch7.addGeometry(Part.LineSegment(V(1.5, -17.5, 0), V(1.5, 2.5, 0)), False)
sketch7.addGeometry(Part.LineSegment(V(1.5, 2.5, 0), V(6.5, -15, 0)), False)
sketch7.addGeometry(Part.LineSegment(V(6.5, -15, 0), V(12.2, -15, 0)), False)
sketch7.addConstraint(Sketcher.Constraint("Tangent", 5, 2, 6, 2))
sketch7.addConstraint(Sketcher.Constraint("Tangent", 6, 1, 7, 1))
sketch7.addConstraint(Sketcher.Constraint("Coincident", 7, 2, 8, 1))
sketch7.addConstraint(Sketcher.Constraint("Coincident", 8, 2, 9, 1))
sketch7.addConstraint(Sketcher.Constraint("Coincident", 9, 2, 10, 1))
sketch7.addConstraint(Sketcher.Constraint("Coincident", 10, 2, 11, 1))
sketch7.addConstraint(Sketcher.Constraint("Coincident", 11, 2, 12, 1))
sketch7.addConstraint(Sketcher.Constraint("Coincident", 12, 2, 13, 1))
sketch7.addConstraint(Sketcher.Constraint("Coincident", 13, 2, 14, 1))
sketch7.addConstraint(Sketcher.Constraint("Coincident", 14, 2, 5, 1))
sketch7.addConstraint(Sketcher.Constraint("Vertical", 5))
sketch7.addConstraint(Sketcher.Constraint("Vertical", 7))
sketch7.addConstraint(Sketcher.Constraint("Horizontal", 8))
sketch7.addConstraint(Sketcher.Constraint("Vertical", 10))
sketch7.addConstraint(Sketcher.Constraint("Horizontal", 11))
sketch7.addConstraint(Sketcher.Constraint("Vertical", 12))
sketch7.addConstraint(Sketcher.Constraint("Horizontal", 14))
sketch7.addConstraint(Sketcher.Constraint("Equal", 0, 1))
sketch7.addConstraint(Sketcher.Constraint("Equal", 1, 2))
sketch7.addConstraint(Sketcher.Constraint("Equal", 2, 3))
sketch7.addConstraint(Sketcher.Constraint("Equal", 3, 4))
sketch7.addConstraint(Sketcher.Constraint("Horizontal", 1, 3, 3, 3))
sketch7.addConstraint(Sketcher.Constraint("Horizontal", 0, 3, 4, 3))
sketch7.addConstraint(Sketcher.Constraint("Horizontal", 4, 3, 6, 3))
sketch7.addConstraint(Sketcher.Constraint("Horizontal", 9, 2, 12, 2))
sketch7.addConstraint(Sketcher.Constraint("Horizontal", 8, 2, 13, 2))
sketch7.addConstraint(Sketcher.Constraint("Vertical", 2, 3, 6, 3))
sketch7.addConstraint(Sketcher.Constraint("Equal", 8, 14))
sketch7.addConstraint(Sketcher.Constraint("Equal", 9, 13))
sketch7.addConstraint(Sketcher.Constraint("Radius", 6, 4.0))
sketch7.addConstraint(Sketcher.Constraint("Diameter", 0, 2.2))
sketch7.addConstraint(Sketcher.Constraint("DistanceY", 10, 2, 10, 1, 20.0))
sketch7.addConstraint(Sketcher.Constraint("DistanceX", 11, 2, 11, 1, 29.3))
sketch7.addConstraint(Sketcher.Constraint("DistanceY", 5, 1, 5, 2, 2.5))
sketch7.addConstraint(Sketcher.Constraint("DistanceY", 7, 2, -1, 1, 15.0))
sketch7.addConstraint(Sketcher.Constraint("DistanceY", 4, 3, 9, 2, 15.0))
sketch7.addConstraint(Sketcher.Constraint("DistanceX", 8, 2, 9, 2, 5.0))
sketch7.addConstraint(Sketcher.Constraint("DistanceY", 1, 3, -1, 1, 8.1))
sketch7.addConstraint(Sketcher.Constraint("DistanceX", -1, 1, 8, 2, 25.8))
sketch7.addConstraint(Sketcher.Constraint("DistanceX", 1, 3, 2, 3, 4.4))
sketch7.addConstraint(Sketcher.Constraint("DistanceX", 2, 3, 3, 3, 4.4))
sketch7.addConstraint(Sketcher.Constraint("DistanceX", -1, 1, 0, 3, 9.92746))
sketch7.addConstraint(Sketcher.Constraint("DistanceY", 2, 3, -1, 1, 6.27746))
sketch7.addConstraint(Sketcher.Constraint("DistanceX", -1, 1, 4, 3, 22.37254))
pocket3 = doc.addObject("PartDesign::Pocket", "Pocket002")
body.addObject(pocket3)
pocket3.Profile = sketch7
pocket3.Type = "ThroughAll"
pocket3.Reversed = True

sketch8 = doc.addObject("Sketcher::SketchObject", "Sketch007")
body.addObject(sketch8)
sketch8.AttachmentSupport = (doc.XY_Plane, [""])
sketch8.MapMode = "FlatFace"
sketch8.AttachmentOffset = App.Placement(V(0, 0, 50.3), App.Rotation())
sketch8.addGeometry(Part.LineSegment(V(1.5, 2.5, 0), V(4.5, -8.1, 0)), False)
sketch8.addGeometry(Part.LineSegment(V(4.5, -8.1, 0), V(4.5, 4, 0)), False)
sketch8.addGeometry(Part.LineSegment(V(4.5, 4, 0), V(1.5, 4, 0)), False)
sketch8.addGeometry(Part.LineSegment(V(1.5, 4, 0), V(1.5, 2.5, 0)), False)
sketch8.addGeometry(Part.LineSegment(V(30.8, 4, 0), V(27.8, 4, 0)), False)
sketch8.addGeometry(Part.LineSegment(V(27.8, 4, 0), V(27.8, -8.1, 0)), False)
sketch8.addGeometry(Part.LineSegment(V(27.8, -8.1, 0), V(30.8, 2.5, 0)), False)
sketch8.addGeometry(Part.LineSegment(V(30.8, 2.5, 0), V(30.8, 4, 0)), False)
sketch8.addConstraint(Sketcher.Constraint("Coincident", 0, 2, 1, 1))
sketch8.addConstraint(Sketcher.Constraint("Coincident", 1, 2, 2, 1))
sketch8.addConstraint(Sketcher.Constraint("Coincident", 2, 2, 3, 1))
sketch8.addConstraint(Sketcher.Constraint("Coincident", 3, 2, 0, 1))
sketch8.addConstraint(Sketcher.Constraint("Coincident", 4, 2, 5, 1))
sketch8.addConstraint(Sketcher.Constraint("Coincident", 5, 2, 6, 1))
sketch8.addConstraint(Sketcher.Constraint("Coincident", 6, 2, 7, 1))
sketch8.addConstraint(Sketcher.Constraint("Coincident", 7, 2, 4, 1))
sketch8.addConstraint(Sketcher.Constraint("Vertical", 1))
sketch8.addConstraint(Sketcher.Constraint("Horizontal", 2))
sketch8.addConstraint(Sketcher.Constraint("Vertical", 3))
sketch8.addConstraint(Sketcher.Constraint("Horizontal", 4))
sketch8.addConstraint(Sketcher.Constraint("Vertical", 5))
sketch8.addConstraint(Sketcher.Constraint("Vertical", 7))
sketch8.addConstraint(Sketcher.Constraint("Horizontal", 2, 2, 4, 2))
sketch8.addConstraint(Sketcher.Constraint("Horizontal", 0, 2, 5, 2))
sketch8.addConstraint(Sketcher.Constraint("Horizontal", 3, 2, 6, 2))
sketch8.addConstraint(Sketcher.Constraint("Equal", 2, 4))
sketch8.addConstraint(Sketcher.Constraint("DistanceY", 1, 1, 1, 2, 12.1))
sketch8.addConstraint(Sketcher.Constraint("DistanceY", 3, 2, 3, 1, 1.5))
sketch8.addConstraint(Sketcher.Constraint("DistanceY", -1, 1, 1, 2, 4.0))
sketch8.addConstraint(Sketcher.Constraint("DistanceX", -1, 1, 2, 2, 1.5))
sketch8.addConstraint(Sketcher.Constraint("DistanceX", -1, 1, 6, 2, 30.8))
sketch8.addConstraint(Sketcher.Constraint("DistanceX", 2, 2, 2, 1, 3.028571))
pocket4 = doc.addObject("PartDesign::Pocket", "Pocket003")
body.addObject(pocket4)
pocket4.Profile = sketch8
pocket4.Length = 30.8

doc.recompute()
